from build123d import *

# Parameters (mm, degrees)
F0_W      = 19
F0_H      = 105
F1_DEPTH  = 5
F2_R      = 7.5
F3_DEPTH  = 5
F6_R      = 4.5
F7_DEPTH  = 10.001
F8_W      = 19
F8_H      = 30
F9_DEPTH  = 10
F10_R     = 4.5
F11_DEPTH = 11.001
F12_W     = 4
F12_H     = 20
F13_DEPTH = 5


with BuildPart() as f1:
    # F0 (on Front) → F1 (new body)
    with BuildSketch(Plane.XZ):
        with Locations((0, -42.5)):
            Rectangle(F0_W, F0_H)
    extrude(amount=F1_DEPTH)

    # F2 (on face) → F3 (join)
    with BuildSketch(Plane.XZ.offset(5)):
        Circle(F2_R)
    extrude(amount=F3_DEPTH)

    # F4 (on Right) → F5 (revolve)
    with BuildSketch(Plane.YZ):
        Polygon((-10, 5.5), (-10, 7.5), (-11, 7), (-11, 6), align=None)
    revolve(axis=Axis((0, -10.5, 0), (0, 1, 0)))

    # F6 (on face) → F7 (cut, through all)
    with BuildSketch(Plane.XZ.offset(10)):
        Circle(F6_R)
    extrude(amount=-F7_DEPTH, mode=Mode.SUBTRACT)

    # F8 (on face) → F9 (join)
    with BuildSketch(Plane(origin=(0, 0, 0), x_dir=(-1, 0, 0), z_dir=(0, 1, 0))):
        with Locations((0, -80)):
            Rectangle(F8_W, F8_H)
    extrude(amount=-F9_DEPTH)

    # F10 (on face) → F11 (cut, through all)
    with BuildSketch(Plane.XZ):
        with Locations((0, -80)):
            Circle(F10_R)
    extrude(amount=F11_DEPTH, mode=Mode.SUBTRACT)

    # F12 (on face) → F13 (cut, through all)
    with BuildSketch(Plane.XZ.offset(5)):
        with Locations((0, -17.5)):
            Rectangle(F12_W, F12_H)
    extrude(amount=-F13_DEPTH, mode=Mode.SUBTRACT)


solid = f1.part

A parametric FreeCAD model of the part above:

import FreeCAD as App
import Part
import Sketcher
from FreeCAD import Vector

doc = App.newDocument("Part")
body = doc.addObject("PartDesign::Body", "Body")

# Sketch on XZ plane
sketch1 = body.newObject("Sketcher::SketchObject", "Sketch")
sketch1.AttachmentSupport = (doc.getObject("XZ_Plane"), [""])
sketch1.MapMode = "FlatFace"
sketch1.addGeometry([
    Part.LineSegment(Vector(-9.5, 10, 0), Vector(-9.5, -95, 0)),
    Part.LineSegment(Vector(-9.5, -95, 0), Vector(9.5, -95, 0)),
    Part.LineSegment(Vector(9.5, -95, 0), Vector(9.5, 10, 0)),
    Part.LineSegment(Vector(9.5, 10, 0), Vector(-9.5, 10, 0)),
], False)
sketch1.addConstraint([
    Sketcher.Constraint("Coincident", 0, 2, 1, 1),
    Sketcher.Constraint("Coincident", 1, 2, 2, 1),
    Sketcher.Constraint("Coincident", 2, 2, 3, 1),
    Sketcher.Constraint("Coincident", 3, 2, 0, 1),
    Sketcher.Constraint("Vertical", 0),
    Sketcher.Constraint("Horizontal", 1),
    Sketcher.Constraint("Vertical", 2),
    Sketcher.Constraint("Horizontal", 3),
    Sketcher.Constraint("DistanceX", 1, 1, 1, 2, 19.0),
    Sketcher.Constraint("DistanceY", 0, 2, 0, 1, 105.0),
    Sketcher.Constraint("DistanceY", 0, 2, -1, 1, 95.0),
    Sketcher.Constraint("DistanceX", 0, 2, -1, 1, 9.5),
])
pad1 = body.newObject("PartDesign::Pad", "Pad")
pad1.Profile = sketch1
pad1.Length = 5

# Sketch on XZ plane
sketch2 = body.newObject("Sketcher::SketchObject", "Sketch001")
sketch2.AttachmentSupport = (doc.getObject("XZ_Plane"), [""])
sketch2.MapMode = "FlatFace"
sketch2.AttachmentOffset = App.Placement(Vector(0, 0, 5), App.Rotation())
sketch2.addGeometry(Part.Circle(Vector(0, 0, 0), Vector(0, 0, 1), 7.5), False)
sketch2.addConstraint([
    Sketcher.Constraint("Coincident", 0, 3, -1, 1),
    Sketcher.Constraint("Diameter", 0, 15.0),
])
pad2 = body.newObject("PartDesign::Pad", "Pad001")
pad2.Profile = sketch2
pad2.Length = 5

# Sketch on YZ plane
sketch3 = body.newObject("Sketcher::SketchObject", "Sketch002")
sketch3.AttachmentSupport = (doc.getObject("YZ_Plane"), [""])
sketch3.MapMode = "FlatFace"
sketch3.addGeometry([
    Part.LineSegment(Vector(-10, 5.5, 0), Vector(-10, 7.5, 0)),
    Part.LineSegment(Vector(-10, 7.5, 0), Vector(-11, 7, 0)),
    Part.LineSegment(Vector(-11, 7, 0), Vector(-11, 6, 0)),
    Part.LineSegment(Vector(-11, 6, 0), Vector(-10, 5.5, 0)),
], False)
sketch3.addConstraint([
    Sketcher.Constraint("Coincident", 0, 2, 1, 1),
    Sketcher.Constraint("Coincident", 1, 2, 2, 1),
    Sketcher.Constraint("Coincident", 2, 2, 3, 1),
    Sketcher.Constraint("Coincident", 3, 2, 0, 1),
    Sketcher.Constraint("Vertical", 0),
    Sketcher.Constraint("Vertical", 2),
    Sketcher.Constraint("Equal", 1, 3),
    Sketcher.Constraint("DistanceY", 0, 1, 0, 2, 2.0),
    Sketcher.Constraint("DistanceY", 2, 2, 2, 1, 1.0),
    Sketcher.Constraint("DistanceX", 0, 2, -1, 1, 10.0),
    Sketcher.Constraint("DistanceX", 1, 2, -1, 1, 11.0),
    Sketcher.Constraint("DistanceY", -1, 1, 1, 2, 7.0),
])
revolution = body.newObject("PartDesign::Revolution", "Revolution")
revolution.Profile = sketch3
revolution.ReferenceAxis = (sketch3, ["H_Axis"])
revolution.Angle = 360

# Sketch on XZ plane
sketch4 = body.newObject("Sketcher::SketchObject", "Sketch003")
sketch4.AttachmentSupport = (doc.getObject("XZ_Plane"), [""])
sketch4.MapMode = "FlatFace"
sketch4.AttachmentOffset = App.Placement(Vector(0, 0, 10), App.Rotation())
sketch4.addGeometry(Part.Circle(Vector(0, 0, 0), Vector(0, 0, 1), 4.5), False)
sketch4.addConstraint([
    Sketcher.Constraint("Coincident", 0, 3, -1, 1),
    Sketcher.Constraint("Diameter", 0, 9.0),
])
pocket1 = body.newObject("PartDesign::Pocket", "Pocket")
pocket1.Profile = sketch4
pocket1.Type = "ThroughAll"

# Sketch on XZ plane
sketch5 = body.newObject("Sketcher::SketchObject", "Sketch004")
sketch5.AttachmentSupport = (doc.getObject("XZ_Plane"), [""])
sketch5.MapMode = "FlatFace"
sketch5.addGeometry([
    Part.LineSegment(Vector(9.5, -65, 0), Vector(9.5, -95, 0)),
    Part.LineSegment(Vector(9.5, -95, 0), Vector(-9.5, -95, 0)),
    Part.LineSegment(Vector(-9.5, -95, 0), Vector(-9.5, -65, 0)),
    Part.LineSegment(Vector(-9.5, -65, 0), Vector(9.5, -65, 0)),
], False)
sketch5.addConstraint([
    Sketcher.Constraint("Coincident", 0, 2, 1, 1),
    Sketcher.Constraint("Coincident", 1, 2, 2, 1),
    Sketcher.Constraint("Coincident", 2, 2, 3, 1),
    Sketcher.Constraint("Coincident", 3, 2, 0, 1),
    Sketcher.Constraint("Vertical", 0),
    Sketcher.Constraint("Horizontal", 1),
    Sketcher.Constraint("Vertical", 2),
    Sketcher.Constraint("Horizontal", 3),
    Sketcher.Constraint("DistanceX", 1, 2, 1, 1, 19.0),
    Sketcher.Constraint("DistanceY", 0, 2, 0, 1, 30.0),
    Sketcher.Constraint("DistanceY", 0, 2, -1, 1, 95.0),
    Sketcher.Constraint("DistanceX", -1, 1, 0, 2, 9.5),
])
pad3 = body.newObject("PartDesign::Pad", "Pad002")
pad3.Profile = sketch5
pad3.Length = 10

# Sketch on XZ plane
sketch6 = body.newObject("Sketcher::SketchObject", "Sketch005")
sketch6.AttachmentSupport = (doc.getObject("XZ_Plane"), [""])
sketch6.MapMode = "FlatFace"
sketch6.addGeometry(Part.Circle(Vector(0, -80, 0), Vector(0, 0, 1), 4.5), False)
sketch6.addConstraint([
    Sketcher.Constraint("PointOnObject", 0, 3, -2),
    Sketcher.Constraint("Diameter", 0, 9.0),
    Sketcher.Constraint("DistanceY", 0, 3, -1, 1, 80.0),
])
pocket2 = body.newObject("PartDesign::Pocket", "Pocket001")
pocket2.Profile = sketch6
pocket2.Type = "ThroughAll"
pocket2.Reversed = True

# Sketch on XZ plane
sketch7 = body.newObject("Sketcher::SketchObject", "Sketch006")
sketch7.AttachmentSupport = (doc.getObject("XZ_Plane"), [""])
sketch7.MapMode = "FlatFace"
sketch7.AttachmentOffset = App.Placement(Vector(0, 0, 5), App.Rotation())
sketch7.addGeometry([
    Part.LineSegment(Vector(-2, -7.5, 0), Vector(-2, -27.5, 0)),
    Part.LineSegment(Vector(-2, -27.5, 0), Vector(2, -27.5, 0)),
    Part.LineSegment(Vector(2, -27.5, 0), Vector(2, -7.5, 0)),
    Part.LineSegment(Vector(2, -7.5, 0), Vector(-2, -7.5, 0)),
], False)
sketch7.addConstraint([
    Sketcher.Constraint("Coincident", 0, 2, 1, 1),
    Sketcher.Constraint("Coincident", 1, 2, 2, 1),
    Sketcher.Constraint("Coincident", 2, 2, 3, 1),
    Sketcher.Constraint("Coincident", 3, 2, 0, 1),
    Sketcher.Constraint("Vertical", 0),
    Sketcher.Constraint("Horizontal", 1),
    Sketcher.Constraint("Vertical", 2),
    Sketcher.Constraint("Horizontal", 3),
    Sketcher.Constraint("DistanceX", 1, 1, 1, 2, 4.0),
    Sketcher.Constraint("DistanceY", 0, 2, 0, 1, 20.0),
    Sketcher.Constraint("DistanceX", 0, 2, -1, 1, 2.0),
    Sketcher.Constraint("DistanceY", 0, 2, -1, 1, 27.5),
])
pocket3 = body.newObject("PartDesign::Pocket", "Pocket002")
pocket3.Profile = sketch7
pocket3.Type = "ThroughAll"

doc.recompute()
